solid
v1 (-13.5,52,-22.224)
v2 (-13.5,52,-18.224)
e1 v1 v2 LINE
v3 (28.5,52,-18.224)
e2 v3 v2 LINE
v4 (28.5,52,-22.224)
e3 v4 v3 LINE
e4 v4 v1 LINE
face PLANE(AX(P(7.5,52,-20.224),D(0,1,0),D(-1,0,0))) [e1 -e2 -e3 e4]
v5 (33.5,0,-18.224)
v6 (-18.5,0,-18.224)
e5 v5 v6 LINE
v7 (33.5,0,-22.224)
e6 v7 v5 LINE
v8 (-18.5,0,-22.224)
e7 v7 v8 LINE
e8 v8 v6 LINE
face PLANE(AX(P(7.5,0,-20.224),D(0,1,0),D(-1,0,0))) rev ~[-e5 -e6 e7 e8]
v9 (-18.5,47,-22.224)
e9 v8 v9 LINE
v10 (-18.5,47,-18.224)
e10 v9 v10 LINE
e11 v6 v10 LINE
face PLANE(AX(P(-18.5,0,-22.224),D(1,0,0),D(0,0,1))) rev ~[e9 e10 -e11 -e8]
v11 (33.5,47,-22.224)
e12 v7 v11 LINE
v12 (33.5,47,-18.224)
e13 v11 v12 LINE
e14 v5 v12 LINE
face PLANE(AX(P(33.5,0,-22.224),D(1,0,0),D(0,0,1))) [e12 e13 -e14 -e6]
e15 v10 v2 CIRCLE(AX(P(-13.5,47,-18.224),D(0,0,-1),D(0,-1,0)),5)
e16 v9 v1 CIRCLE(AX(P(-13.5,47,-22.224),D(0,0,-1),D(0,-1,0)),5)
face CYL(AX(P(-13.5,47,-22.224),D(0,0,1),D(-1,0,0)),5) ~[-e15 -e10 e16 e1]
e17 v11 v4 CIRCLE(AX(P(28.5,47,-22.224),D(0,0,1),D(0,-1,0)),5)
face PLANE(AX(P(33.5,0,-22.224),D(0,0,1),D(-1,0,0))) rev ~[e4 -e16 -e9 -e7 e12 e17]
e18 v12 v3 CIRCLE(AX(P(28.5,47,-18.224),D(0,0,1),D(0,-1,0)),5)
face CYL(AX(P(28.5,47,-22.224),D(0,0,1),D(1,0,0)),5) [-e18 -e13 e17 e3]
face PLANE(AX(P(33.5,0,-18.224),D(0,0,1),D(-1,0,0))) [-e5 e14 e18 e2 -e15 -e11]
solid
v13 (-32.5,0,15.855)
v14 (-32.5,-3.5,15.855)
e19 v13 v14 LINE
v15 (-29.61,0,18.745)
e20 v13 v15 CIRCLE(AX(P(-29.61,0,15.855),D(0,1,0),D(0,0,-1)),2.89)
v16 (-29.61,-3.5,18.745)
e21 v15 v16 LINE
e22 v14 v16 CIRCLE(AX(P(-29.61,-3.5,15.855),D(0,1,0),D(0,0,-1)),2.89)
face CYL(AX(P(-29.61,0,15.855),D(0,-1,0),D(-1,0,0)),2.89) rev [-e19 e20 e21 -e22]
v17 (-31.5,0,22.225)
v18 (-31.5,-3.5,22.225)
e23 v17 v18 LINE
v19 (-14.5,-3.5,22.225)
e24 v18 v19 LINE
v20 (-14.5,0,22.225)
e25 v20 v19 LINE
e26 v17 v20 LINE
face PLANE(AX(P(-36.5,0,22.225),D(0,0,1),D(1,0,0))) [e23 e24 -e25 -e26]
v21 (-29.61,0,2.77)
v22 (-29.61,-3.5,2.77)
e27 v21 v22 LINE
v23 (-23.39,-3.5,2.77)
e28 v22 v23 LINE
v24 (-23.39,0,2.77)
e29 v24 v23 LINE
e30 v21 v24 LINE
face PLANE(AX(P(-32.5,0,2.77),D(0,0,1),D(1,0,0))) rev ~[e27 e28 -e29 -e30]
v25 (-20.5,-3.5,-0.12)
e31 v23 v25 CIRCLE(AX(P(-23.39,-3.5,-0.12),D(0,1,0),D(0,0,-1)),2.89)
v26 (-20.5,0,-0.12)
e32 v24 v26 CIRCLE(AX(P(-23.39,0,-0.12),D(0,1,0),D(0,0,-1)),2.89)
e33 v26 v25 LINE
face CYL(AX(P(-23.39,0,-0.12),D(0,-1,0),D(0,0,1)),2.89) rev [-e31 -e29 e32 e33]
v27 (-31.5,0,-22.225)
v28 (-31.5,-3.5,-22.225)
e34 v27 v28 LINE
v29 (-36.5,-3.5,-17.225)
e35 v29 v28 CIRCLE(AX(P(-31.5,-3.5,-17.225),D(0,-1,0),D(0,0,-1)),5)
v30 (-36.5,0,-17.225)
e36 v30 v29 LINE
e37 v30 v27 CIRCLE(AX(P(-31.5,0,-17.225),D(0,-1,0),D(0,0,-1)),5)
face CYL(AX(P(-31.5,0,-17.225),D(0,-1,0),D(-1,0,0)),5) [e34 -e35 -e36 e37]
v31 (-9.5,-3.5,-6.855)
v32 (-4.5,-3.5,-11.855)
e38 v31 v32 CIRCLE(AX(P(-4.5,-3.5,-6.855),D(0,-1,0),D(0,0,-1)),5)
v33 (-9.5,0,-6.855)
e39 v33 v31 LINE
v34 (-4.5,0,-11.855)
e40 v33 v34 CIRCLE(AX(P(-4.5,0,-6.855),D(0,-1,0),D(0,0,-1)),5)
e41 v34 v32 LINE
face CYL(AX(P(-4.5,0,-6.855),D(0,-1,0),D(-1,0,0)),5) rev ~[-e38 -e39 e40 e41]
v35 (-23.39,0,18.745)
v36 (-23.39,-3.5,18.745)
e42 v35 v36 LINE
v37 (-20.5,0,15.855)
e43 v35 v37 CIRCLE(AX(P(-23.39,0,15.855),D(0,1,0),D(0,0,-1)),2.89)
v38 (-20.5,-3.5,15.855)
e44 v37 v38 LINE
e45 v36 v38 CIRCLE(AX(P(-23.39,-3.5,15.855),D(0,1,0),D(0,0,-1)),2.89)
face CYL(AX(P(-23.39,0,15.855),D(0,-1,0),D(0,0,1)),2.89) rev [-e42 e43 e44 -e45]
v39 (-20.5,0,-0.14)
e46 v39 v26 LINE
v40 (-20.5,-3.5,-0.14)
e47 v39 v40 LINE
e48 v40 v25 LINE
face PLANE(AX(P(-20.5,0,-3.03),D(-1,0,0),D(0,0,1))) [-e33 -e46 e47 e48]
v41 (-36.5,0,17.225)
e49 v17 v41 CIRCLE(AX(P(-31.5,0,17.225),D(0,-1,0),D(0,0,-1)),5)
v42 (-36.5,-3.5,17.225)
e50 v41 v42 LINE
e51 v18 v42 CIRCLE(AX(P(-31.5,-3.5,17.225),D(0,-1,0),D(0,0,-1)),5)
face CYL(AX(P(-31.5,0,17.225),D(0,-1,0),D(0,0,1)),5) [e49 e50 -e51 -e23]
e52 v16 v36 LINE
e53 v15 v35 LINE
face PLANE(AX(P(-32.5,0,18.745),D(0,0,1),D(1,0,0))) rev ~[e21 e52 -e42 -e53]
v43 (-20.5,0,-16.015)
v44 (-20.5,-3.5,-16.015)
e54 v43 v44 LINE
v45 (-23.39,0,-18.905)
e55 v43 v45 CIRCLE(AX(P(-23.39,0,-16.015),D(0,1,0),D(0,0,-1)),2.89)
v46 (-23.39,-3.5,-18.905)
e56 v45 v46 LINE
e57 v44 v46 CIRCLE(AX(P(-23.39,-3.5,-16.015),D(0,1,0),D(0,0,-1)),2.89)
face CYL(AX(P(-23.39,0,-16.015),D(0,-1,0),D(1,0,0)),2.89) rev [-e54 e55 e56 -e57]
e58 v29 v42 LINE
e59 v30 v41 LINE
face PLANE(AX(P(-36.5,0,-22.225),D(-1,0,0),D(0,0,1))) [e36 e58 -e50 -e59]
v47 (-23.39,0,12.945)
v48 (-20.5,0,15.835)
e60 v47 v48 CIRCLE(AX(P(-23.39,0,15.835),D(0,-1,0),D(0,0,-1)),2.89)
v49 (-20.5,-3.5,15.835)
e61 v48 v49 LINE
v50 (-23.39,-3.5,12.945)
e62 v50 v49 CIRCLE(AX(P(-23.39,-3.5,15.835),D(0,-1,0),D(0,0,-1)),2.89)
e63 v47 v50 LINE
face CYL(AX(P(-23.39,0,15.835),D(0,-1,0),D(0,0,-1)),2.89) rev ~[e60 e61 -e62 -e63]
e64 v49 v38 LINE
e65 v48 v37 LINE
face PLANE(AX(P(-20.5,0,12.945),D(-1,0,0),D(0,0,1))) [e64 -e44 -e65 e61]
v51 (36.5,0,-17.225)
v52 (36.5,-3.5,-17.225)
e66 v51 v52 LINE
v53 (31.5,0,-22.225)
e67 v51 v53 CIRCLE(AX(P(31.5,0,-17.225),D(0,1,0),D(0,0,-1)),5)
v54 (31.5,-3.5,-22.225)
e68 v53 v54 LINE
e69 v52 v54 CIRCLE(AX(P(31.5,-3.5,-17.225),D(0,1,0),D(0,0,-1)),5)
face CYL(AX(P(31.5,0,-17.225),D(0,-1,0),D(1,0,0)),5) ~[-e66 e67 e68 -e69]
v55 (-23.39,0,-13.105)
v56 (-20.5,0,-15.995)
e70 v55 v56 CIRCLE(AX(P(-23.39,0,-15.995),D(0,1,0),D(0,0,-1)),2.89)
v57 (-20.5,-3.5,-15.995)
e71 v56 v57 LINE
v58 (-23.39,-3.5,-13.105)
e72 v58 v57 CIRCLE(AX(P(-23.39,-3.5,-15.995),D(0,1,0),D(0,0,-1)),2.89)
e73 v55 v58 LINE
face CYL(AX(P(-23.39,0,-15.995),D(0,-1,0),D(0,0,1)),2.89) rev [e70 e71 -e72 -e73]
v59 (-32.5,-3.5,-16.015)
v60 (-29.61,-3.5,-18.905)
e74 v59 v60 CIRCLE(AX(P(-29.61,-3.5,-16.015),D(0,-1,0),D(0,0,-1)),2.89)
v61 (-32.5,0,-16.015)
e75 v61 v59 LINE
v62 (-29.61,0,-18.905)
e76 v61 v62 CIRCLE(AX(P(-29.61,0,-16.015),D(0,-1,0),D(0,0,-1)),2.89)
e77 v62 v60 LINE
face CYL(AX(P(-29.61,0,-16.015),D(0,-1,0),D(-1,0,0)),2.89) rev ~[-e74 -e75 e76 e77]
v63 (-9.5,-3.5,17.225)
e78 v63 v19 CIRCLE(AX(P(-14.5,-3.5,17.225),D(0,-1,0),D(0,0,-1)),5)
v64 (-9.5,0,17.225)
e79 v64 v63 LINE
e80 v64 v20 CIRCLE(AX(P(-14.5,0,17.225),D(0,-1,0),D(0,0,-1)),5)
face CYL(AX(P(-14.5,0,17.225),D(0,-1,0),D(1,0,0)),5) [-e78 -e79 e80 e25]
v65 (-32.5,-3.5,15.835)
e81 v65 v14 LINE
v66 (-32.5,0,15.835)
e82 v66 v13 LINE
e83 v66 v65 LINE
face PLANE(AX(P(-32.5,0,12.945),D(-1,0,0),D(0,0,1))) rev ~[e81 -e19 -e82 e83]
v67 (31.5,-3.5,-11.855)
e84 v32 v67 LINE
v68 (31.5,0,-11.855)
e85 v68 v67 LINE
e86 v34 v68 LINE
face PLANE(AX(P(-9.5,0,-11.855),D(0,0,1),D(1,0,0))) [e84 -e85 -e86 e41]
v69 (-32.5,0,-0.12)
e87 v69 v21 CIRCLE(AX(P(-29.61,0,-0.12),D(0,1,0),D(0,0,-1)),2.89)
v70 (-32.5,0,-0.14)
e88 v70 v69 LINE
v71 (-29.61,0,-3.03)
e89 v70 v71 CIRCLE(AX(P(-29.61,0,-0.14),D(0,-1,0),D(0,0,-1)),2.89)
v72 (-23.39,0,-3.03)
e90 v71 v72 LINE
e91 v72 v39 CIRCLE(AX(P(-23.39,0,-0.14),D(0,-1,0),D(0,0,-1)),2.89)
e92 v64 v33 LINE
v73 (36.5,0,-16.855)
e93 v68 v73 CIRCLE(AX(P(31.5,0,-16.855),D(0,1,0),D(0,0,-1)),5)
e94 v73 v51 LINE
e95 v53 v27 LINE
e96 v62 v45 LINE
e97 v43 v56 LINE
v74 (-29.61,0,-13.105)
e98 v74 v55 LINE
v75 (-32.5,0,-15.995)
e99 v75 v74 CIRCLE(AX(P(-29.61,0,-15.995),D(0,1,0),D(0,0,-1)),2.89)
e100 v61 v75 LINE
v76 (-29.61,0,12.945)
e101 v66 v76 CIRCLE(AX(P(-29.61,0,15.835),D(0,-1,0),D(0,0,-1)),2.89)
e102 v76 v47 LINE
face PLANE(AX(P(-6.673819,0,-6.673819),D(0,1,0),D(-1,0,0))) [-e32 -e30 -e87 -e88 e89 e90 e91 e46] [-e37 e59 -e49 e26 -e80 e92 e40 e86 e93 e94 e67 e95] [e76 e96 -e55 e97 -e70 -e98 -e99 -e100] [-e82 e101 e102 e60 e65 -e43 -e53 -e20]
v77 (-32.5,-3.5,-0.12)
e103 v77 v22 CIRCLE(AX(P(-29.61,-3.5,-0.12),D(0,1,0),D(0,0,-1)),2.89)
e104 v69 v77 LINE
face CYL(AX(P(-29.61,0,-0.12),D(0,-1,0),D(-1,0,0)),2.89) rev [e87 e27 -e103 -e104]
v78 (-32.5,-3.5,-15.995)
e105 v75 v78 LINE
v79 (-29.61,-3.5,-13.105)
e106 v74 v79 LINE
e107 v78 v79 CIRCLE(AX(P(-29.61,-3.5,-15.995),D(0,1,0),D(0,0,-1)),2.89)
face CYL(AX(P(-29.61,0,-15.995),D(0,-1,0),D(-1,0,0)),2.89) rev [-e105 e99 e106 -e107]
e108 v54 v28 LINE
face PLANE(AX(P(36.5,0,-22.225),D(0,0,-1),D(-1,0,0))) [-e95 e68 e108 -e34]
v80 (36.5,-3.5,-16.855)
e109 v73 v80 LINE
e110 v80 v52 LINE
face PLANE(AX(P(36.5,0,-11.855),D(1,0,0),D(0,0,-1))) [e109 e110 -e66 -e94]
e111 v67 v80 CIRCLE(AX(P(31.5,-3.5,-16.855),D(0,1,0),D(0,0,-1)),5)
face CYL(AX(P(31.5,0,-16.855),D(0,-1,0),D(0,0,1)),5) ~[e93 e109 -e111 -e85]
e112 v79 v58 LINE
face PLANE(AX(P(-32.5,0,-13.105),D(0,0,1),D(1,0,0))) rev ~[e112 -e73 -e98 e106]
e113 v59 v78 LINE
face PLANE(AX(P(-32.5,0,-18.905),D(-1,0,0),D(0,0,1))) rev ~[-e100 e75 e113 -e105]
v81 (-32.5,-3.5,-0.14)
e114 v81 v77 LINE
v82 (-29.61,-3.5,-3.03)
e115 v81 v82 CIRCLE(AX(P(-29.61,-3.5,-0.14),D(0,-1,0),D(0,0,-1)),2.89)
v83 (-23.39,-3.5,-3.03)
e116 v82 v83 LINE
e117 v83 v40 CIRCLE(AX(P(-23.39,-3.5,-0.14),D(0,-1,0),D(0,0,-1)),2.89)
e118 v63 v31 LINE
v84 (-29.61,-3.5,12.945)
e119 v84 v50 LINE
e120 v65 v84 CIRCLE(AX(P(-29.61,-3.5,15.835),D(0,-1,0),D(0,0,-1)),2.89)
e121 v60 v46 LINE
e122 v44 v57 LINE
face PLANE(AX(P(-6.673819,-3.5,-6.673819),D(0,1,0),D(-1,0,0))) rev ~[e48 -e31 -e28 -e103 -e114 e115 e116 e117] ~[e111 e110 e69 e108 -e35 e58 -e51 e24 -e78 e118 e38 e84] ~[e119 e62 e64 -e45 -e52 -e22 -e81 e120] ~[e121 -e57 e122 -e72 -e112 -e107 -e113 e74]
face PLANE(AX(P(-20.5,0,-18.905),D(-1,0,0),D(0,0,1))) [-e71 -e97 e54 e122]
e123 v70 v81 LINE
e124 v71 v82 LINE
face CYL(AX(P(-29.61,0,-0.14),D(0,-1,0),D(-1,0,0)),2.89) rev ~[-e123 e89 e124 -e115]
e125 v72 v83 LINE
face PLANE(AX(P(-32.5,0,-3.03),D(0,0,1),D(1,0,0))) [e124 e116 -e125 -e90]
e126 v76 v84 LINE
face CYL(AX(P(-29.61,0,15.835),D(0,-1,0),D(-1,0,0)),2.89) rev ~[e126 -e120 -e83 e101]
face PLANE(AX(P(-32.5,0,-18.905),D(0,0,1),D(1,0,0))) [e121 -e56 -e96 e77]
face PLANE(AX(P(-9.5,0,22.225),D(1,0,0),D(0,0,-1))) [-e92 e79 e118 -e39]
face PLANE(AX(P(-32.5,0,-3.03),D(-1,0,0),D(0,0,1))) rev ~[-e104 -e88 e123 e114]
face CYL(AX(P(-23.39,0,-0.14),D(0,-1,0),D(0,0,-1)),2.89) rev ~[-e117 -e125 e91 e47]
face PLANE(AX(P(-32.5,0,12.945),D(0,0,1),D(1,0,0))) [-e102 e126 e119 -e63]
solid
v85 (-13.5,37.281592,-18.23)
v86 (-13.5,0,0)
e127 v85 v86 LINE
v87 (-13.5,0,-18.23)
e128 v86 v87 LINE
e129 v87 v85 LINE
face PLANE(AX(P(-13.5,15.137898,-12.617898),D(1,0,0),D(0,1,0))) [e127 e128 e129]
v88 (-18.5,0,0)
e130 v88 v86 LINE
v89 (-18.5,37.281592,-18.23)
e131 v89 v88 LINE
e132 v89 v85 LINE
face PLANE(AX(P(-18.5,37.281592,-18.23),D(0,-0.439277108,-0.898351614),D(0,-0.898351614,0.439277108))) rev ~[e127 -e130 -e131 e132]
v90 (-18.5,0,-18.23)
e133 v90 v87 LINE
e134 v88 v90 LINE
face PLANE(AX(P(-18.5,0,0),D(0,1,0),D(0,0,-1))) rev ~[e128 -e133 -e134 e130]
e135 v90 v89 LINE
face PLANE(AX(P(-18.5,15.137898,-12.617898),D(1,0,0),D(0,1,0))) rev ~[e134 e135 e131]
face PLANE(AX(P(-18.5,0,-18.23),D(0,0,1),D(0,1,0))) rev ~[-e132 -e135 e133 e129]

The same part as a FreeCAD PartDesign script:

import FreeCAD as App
import Part
import Sketcher
Q = App.Units.Quantity


def edges_at(feature, points):
    """Names of the edges that pass closest to the given points."""
    edges = feature.Shape.Edges
    near = lambda p: min(range(len(edges)), key=lambda i: edges[i].distToShape(Part.Vertex(*p))[0])
    return sorted({f"Edge{near(p) + 1}" for p in points})


def add_polygon(sketch, points):
    """Adds a closed chain of lines whose ends are joined by coincident constraints."""
    first, n = sketch.GeometryCount, len(points)
    for a, b in zip(points, points[1:] + points[:1]):
        sketch.addGeometry(Part.LineSegment(App.Vector(*a, 0), App.Vector(*b, 0)), False)
    for i in range(n):
        sketch.addConstraint(Sketcher.Constraint("Coincident", first + i, 2, first + (i + 1) % n, 1))

doc = App.newDocument("Part")
body = doc.addObject("PartDesign::Body", "Body")

sketch1 = doc.addObject("Sketcher::SketchObject", "Sketch")
body.addObject(sketch1)
sketch1.AttachmentSupport = (doc.XZ_Plane, [""])
sketch1.MapMode = "FlatFace"
add_polygon(sketch1, [(33.5, -18.2), (33.5, -22.2), (-18.5, -22.2), (-18.5, -18.2)])
sketch1.addConstraint([
    Sketcher.Constraint("Vertical", 0),
    Sketcher.Constraint("Horizontal", 1),
    Sketcher.Constraint("Vertical", 2),
    Sketcher.Constraint("Horizontal", 3),
    Sketcher.Constraint("DistanceX", 1, 2, 1, 1, Q("52 mm")),
    Sketcher.Constraint("DistanceY", 0, 2, 0, 1, Q("4 mm")),
    Sketcher.Constraint("DistanceX", -1, 1, 0, 2, Q("33.5 mm")),
    Sketcher.Constraint("DistanceY", 0, 2, -1, 1, Q("22.224 mm")),
])
pad1 = doc.addObject("PartDesign::Pad", "Pad")
body.addObject(pad1)
pad1.Profile = sketch1
pad1.Length = 52
pad1.Reversed = True
doc.recompute()

fillet = doc.addObject("PartDesign::Fillet", "Fillet")
body.addObject(fillet)
fillet.Base = (pad1, edges_at(pad1, [(-18.5, 52, -20.224), (33.5, 52, -20.224)]))
fillet.Radius = 5
body2 = doc.addObject("PartDesign::Body", "Body001")

sketch2 = doc.addObject("Sketcher::SketchObject", "Sketch001")
body2.addObject(sketch2)
sketch2.AttachmentSupport = (doc.getObject("YZ_Plane001"), [""])
sketch2.MapMode = "FlatFace"
sketch2.AttachmentOffset = App.Placement(App.Vector(0, 0, -18.5), App.Rotation())
add_polygon(sketch2, [(0, -18), (0, 0), (37, -18)])
sketch2.addConstraint([
    Sketcher.Constraint("Vertical", 0),
    Sketcher.Constraint("Horizontal", 2),
    Sketcher.Constraint("Coincident", 0, 2, -1, 1),
    Sketcher.Constraint("Distance", 1, Q("41.5 mm")),
    Sketcher.Constraint("DistanceY", 0, 1, 0, 2, Q("18.23 mm")),
])
pad2 = doc.addObject("PartDesign::Pad", "Pad001")
body2.addObject(pad2)
pad2.Profile = sketch2
pad2.Length = 5
body3 = doc.addObject("PartDesign::Body", "Body002")

sketch3 = doc.addObject("Sketcher::SketchObject", "Sketch002")
body3.addObject(sketch3)
sketch3.AttachmentSupport = (doc.getObject("XZ_Plane002"), [""])
sketch3.MapMode = "FlatFace"
add_polygon(sketch3, [(-10, -12), (-10, 22), (-36, 22), (-36, -22), (36, -22), (36, -12)])
add_polygon(sketch3, [(-32, -19), (-32, -13), (-20, -13), (-20, -19)])
add_polygon(sketch3, [(-32, -3), (-32, 3), (-20, 3), (-20, -3)])
add_polygon(sketch3, [(-32, 13), (-32, 19), (-20, 19), (-20, 13)])
sketch3.addConstraint([
    Sketcher.Constraint("Vertical", 0),
    Sketcher.Constraint("Horizontal", 1),
    Sketcher.Constraint("Vertical", 2),
    Sketcher.Constraint("Horizontal", 3),
    Sketcher.Constraint("Vertical", 4),
    Sketcher.Constraint("Horizontal", 5),
    Sketcher.Constraint("Vertical", 6),
    Sketcher.Constraint("Horizontal", 7),
    Sketcher.Constraint("Vertical", 8),
    Sketcher.Constraint("Horizontal", 9),
    Sketcher.Constraint("Vertical", 10),
    Sketcher.Constraint("Horizontal", 11),
    Sketcher.Constraint("Vertical", 12),
    Sketcher.Constraint("Horizontal", 13),
    Sketcher.Constraint("Vertical", 14),
    Sketcher.Constraint("Horizontal", 15),
    Sketcher.Constraint("Vertical", 16),
    Sketcher.Constraint("Horizontal", 17),
    Sketcher.Constraint("Symmetric", 1, 2, 3, 2, -1, 1),
    Sketcher.Constraint("Vertical", 9, 2, 10, 2),
    Sketcher.Constraint("Vertical", 8, 2, 11, 2),
    Sketcher.Constraint("Vertical", 13, 2, 14, 2),
    Sketcher.Constraint("Vertical", 12, 2, 15, 2),
    Sketcher.Constraint("Equal", 8, 10),
    Sketcher.Constraint("Equal", 12, 14),
    Sketcher.Constraint("DistanceX", 1, 2, 1, 1, Q("27 mm")),
    Sketcher.Constraint("DistanceX", 3, 1, 3, 2, Q("73 mm")),
    Sketcher.Constraint("DistanceX", 7, 1, 7, 2, Q("12 mm")),
    Sketcher.Constraint("DistanceY", 6, 1, 6, 2, Q("5.8 mm")),
    Sketcher.Constraint("DistanceX", 2, 2, 6, 2, Q("4 mm")),
    Sketcher.Constraint("DistanceY", 0, 1, 0, 2, Q("34.08 mm")),
    Sketcher.Constraint("DistanceY", 2, 2, 2, 1, Q("44.45 mm")),
    Sketcher.Constraint("DistanceY", -1, 1, 10, 2, Q("2.77 mm")),
    Sketcher.Constraint("DistanceY", 2, 2, 6, 2, Q("9.12 mm")),
    Sketcher.Constraint("DistanceY", 14, 2, 1, 2, Q("3.48 mm")),
])
pad3 = doc.addObject("PartDesign::Pad", "Pad002")
body3.addObject(pad3)
pad3.Profile = sketch3
pad3.Length = 3.5
doc.recompute()

fillet2 = doc.addObject("PartDesign::Fillet", "Fillet001")
body3.addObject(fillet2)
fillet2.Base = (pad3, edges_at(pad3, [
    (-9.5, -1.75, 22.225),
    (-9.5, -1.75, -11.855),
    (36.5, -1.75, -11.855),
    (36.5, -1.75, -22.225),
    (-36.5, -1.75, -22.225),
    (-36.5, -1.75, 22.225),
]))
fillet2.Radius = 5
doc.recompute()

fillet3 = doc.addObject("PartDesign::Fillet", "Fillet002")
body3.addObject(fillet3)
fillet3.Base = (fillet2, edges_at(fillet2, [
    (-32.5, -1.75, -13.105),
    (-20.5, -1.75, -13.105),
    (-20.5, -1.75, -18.905),
    (-32.5, -1.75, -18.905),
    (-32.5, -1.75, 2.77),
    (-20.5, -1.75, 2.77),
    (-20.5, -1.75, -3.03),
    (-32.5, -1.75, -3.03),
    (-32.5, -1.75, 18.745),
    (-20.5, -1.75, 18.745),
    (-20.5, -1.75, 12.945),
    (-32.5, -1.75, 12.945),
]))
fillet3.Radius = 2.89

doc.recompute()
